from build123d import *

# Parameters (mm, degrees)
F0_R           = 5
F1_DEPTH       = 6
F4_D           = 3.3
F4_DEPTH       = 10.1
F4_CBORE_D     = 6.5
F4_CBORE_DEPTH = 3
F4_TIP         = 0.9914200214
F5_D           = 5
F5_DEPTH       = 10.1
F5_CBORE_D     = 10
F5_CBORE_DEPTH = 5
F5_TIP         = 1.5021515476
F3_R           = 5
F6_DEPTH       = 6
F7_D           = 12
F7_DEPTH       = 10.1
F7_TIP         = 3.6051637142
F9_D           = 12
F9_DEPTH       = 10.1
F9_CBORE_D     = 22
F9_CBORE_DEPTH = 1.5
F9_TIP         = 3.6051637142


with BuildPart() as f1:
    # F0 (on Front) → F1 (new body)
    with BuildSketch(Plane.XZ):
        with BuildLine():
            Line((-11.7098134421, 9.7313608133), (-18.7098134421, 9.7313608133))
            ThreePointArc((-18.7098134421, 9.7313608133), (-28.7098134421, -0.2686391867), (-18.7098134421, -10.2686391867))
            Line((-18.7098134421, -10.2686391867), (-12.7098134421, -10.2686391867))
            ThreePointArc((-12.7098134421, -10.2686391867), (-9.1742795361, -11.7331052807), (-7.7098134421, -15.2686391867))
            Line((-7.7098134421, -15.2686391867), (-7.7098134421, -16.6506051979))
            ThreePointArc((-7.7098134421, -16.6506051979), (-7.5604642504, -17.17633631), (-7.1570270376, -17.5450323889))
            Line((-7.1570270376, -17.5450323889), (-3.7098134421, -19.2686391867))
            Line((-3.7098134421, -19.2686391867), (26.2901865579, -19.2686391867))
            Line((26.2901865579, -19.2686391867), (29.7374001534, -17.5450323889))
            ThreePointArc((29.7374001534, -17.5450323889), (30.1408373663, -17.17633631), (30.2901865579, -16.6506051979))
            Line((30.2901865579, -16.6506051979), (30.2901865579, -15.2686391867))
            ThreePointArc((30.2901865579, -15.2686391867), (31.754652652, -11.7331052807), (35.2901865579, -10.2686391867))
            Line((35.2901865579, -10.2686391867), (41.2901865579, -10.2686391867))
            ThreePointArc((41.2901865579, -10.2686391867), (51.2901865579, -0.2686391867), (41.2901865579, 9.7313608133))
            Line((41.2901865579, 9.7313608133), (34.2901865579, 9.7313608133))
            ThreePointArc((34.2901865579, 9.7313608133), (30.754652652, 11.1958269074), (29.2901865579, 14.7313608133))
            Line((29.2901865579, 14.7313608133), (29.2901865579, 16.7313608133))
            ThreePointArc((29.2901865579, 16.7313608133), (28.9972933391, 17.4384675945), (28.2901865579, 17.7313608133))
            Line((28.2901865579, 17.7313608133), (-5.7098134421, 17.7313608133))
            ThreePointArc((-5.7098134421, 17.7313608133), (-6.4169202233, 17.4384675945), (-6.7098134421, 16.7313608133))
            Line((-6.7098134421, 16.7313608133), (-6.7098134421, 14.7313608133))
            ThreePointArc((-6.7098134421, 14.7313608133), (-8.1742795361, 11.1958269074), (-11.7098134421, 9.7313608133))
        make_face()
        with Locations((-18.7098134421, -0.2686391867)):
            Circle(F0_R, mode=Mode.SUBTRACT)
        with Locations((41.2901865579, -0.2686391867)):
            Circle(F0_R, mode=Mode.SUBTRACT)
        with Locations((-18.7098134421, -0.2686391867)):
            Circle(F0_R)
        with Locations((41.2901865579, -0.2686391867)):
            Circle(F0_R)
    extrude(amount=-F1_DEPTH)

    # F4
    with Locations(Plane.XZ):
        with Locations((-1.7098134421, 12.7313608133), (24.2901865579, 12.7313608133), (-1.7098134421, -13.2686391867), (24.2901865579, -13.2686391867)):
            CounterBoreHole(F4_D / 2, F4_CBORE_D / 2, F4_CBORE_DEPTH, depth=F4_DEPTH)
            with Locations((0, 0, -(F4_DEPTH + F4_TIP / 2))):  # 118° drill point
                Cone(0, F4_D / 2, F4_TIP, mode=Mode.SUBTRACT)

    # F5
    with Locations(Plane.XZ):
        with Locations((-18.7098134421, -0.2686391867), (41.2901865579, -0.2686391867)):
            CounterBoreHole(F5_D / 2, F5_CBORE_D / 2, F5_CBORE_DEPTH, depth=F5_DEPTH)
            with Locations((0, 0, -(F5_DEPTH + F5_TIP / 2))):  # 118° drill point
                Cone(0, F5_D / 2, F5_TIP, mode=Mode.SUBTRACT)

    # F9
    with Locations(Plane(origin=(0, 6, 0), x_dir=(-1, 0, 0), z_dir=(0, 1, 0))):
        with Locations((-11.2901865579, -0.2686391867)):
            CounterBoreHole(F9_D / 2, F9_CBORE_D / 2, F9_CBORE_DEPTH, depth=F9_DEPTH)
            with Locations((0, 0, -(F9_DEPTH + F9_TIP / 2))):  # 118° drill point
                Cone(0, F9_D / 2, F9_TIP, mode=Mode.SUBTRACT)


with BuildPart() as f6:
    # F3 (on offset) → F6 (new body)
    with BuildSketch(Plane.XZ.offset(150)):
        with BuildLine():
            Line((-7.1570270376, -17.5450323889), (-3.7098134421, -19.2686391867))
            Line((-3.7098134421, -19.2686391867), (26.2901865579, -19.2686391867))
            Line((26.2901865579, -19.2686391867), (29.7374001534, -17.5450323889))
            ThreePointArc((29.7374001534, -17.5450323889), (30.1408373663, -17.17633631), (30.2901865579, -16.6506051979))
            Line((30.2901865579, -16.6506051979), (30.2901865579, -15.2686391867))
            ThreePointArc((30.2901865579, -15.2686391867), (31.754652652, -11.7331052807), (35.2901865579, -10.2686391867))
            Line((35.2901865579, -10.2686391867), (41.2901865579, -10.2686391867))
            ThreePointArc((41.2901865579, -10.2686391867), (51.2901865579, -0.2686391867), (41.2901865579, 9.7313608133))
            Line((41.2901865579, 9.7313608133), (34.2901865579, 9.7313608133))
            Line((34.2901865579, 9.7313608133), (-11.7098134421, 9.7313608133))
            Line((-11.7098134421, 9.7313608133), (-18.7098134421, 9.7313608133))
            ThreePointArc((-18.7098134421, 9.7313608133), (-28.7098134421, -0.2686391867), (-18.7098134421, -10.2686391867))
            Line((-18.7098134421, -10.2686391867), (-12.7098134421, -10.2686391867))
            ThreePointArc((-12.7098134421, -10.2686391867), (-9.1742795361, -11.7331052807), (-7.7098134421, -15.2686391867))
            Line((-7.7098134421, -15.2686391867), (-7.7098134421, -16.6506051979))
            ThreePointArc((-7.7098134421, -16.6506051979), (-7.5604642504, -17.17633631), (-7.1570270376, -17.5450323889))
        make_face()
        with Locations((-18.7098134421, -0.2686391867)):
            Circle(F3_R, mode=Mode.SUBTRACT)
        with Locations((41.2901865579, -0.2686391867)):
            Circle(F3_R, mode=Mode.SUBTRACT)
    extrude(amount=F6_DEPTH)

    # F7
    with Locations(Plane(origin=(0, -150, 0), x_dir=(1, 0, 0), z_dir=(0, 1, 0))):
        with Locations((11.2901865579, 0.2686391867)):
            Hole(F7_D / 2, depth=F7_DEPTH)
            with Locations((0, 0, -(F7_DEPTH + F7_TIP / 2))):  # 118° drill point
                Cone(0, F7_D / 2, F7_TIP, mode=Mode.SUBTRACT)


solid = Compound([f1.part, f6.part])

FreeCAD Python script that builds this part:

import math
import FreeCAD as App
import Part
import Sketcher
from FreeCAD import Vector

doc = App.newDocument("Part")
body = doc.addObject("PartDesign::Body", "Body")

# Sketch on XZ plane
sketch1 = body.newObject("Sketcher::SketchObject", "Sketch")
sketch1.AttachmentSupport = (doc.getObject("XZ_Plane"), [""])
sketch1.MapMode = "FlatFace"
sketch1.addGeometry(Part.LineSegment(Vector(-11.7, 9.7, 0), Vector(-18.7, 9.7, 0)), False)
sketch1.addGeometry(Part.ArcOfCircle(Part.Circle(Vector(-18.7, -0.3, 0), Vector(0, 0, 1), 10), math.radians(90), math.radians(270)), False)
sketch1.addGeometry(Part.LineSegment(Vector(-18.7, -10.3, 0), Vector(-12.7, -10.3, 0)), False)
sketch1.addGeometry(Part.ArcOfCircle(Part.Circle(Vector(-12.7, -15.3, 0), Vector(0, 0, 1), 5), math.radians(0), math.radians(90)), False)
sketch1.addGeometry(Part.LineSegment(Vector(-7.7, -15.3, 0), Vector(-7.7, -16.7, 0)), False)
sketch1.addGeometry(Part.ArcOfCircle(Part.Circle(Vector(-6.7, -16.7, 0), Vector(0, 0, 1), 1), math.radians(180), math.radians(243)), False)
sketch1.addGeometry(Part.LineSegment(Vector(-7.2, -17.5, 0), Vector(-3.7, -19.3, 0)), False)
sketch1.addGeometry(Part.LineSegment(Vector(-3.7, -19.3, 0), Vector(26.3, -19.3, 0)), False)
sketch1.addGeometry(Part.LineSegment(Vector(26.3, -19.3, 0), Vector(29.7, -17.5, 0)), False)
sketch1.addGeometry(Part.ArcOfCircle(Part.Circle(Vector(29.3, -16.7, 0), Vector(0, 0, 1), 1), math.radians(-63), math.radians(0)), False)
sketch1.addGeometry(Part.LineSegment(Vector(30.3, -16.7, 0), Vector(30.3, -15.3, 0)), False)
sketch1.addGeometry(Part.ArcOfCircle(Part.Circle(Vector(35.3, -15.3, 0), Vector(0, 0, 1), 5), math.radians(90), math.radians(180)), False)
sketch1.addGeometry(Part.LineSegment(Vector(35.3, -10.3, 0), Vector(41.3, -10.3, 0)), False)
sketch1.addGeometry(Part.ArcOfCircle(Part.Circle(Vector(41.3, -0.3, 0), Vector(0, 0, 1), 10), math.radians(-90), math.radians(90)), False)
sketch1.addGeometry(Part.LineSegment(Vector(41.3, 9.7, 0), Vector(34.3, 9.7, 0)), False)
sketch1.addGeometry(Part.ArcOfCircle(Part.Circle(Vector(34.3, 14.7, 0), Vector(0, 0, 1), 5), math.radians(180), math.radians(270)), False)
sketch1.addGeometry(Part.LineSegment(Vector(29.3, 14.7, 0), Vector(29.3, 16.7, 0)), False)
sketch1.addGeometry(Part.ArcOfCircle(Part.Circle(Vector(28.3, 16.7, 0), Vector(0, 0, 1), 1), math.radians(0), math.radians(90)), False)
sketch1.addGeometry(Part.LineSegment(Vector(28.3, 17.7, 0), Vector(-5.7, 17.7, 0)), False)
sketch1.addGeometry(Part.ArcOfCircle(Part.Circle(Vector(-5.7, 16.7, 0), Vector(0, 0, 1), 1), math.radians(90), math.radians(180)), False)
sketch1.addGeometry(Part.LineSegment(Vector(-6.7, 16.7, 0), Vector(-6.7, 14.7, 0)), False)
sketch1.addGeometry(Part.ArcOfCircle(Part.Circle(Vector(-11.7, 14.7, 0), Vector(0, 0, 1), 5), math.radians(-90), math.radians(0)), False)
sketch1.addConstraint(Sketcher.Constraint("Tangent", 0, 2, 1, 1))
sketch1.addConstraint(Sketcher.Constraint("Tangent", 1, 2, 2, 1))
sketch1.addConstraint(Sketcher.Constraint("Tangent", 2, 2, 3, 2))
sketch1.addConstraint(Sketcher.Constraint("Tangent", 3, 1, 4, 1))
sketch1.addConstraint(Sketcher.Constraint("Tangent", 4, 2, 5, 1))
sketch1.addConstraint(Sketcher.Constraint("Tangent", 5, 2, 6, 1))
sketch1.addConstraint(Sketcher.Constraint("Coincident", 6, 2, 7, 1))
sketch1.addConstraint(Sketcher.Constraint("Coincident", 7, 2, 8, 1))
sketch1.addConstraint(Sketcher.Constraint("Tangent", 8, 2, 9, 1))
sketch1.addConstraint(Sketcher.Constraint("Tangent", 9, 2, 10, 1))
sketch1.addConstraint(Sketcher.Constraint("Tangent", 10, 2, 11, 2))
sketch1.addConstraint(Sketcher.Constraint("Tangent", 11, 1, 12, 1))
sketch1.addConstraint(Sketcher.Constraint("Tangent", 12, 2, 13, 1))
sketch1.addConstraint(Sketcher.Constraint("Tangent", 13, 2, 14, 1))
sketch1.addConstraint(Sketcher.Constraint("Tangent", 14, 2, 15, 2))
sketch1.addConstraint(Sketcher.Constraint("Tangent", 15, 1, 16, 1))
sketch1.addConstraint(Sketcher.Constraint("Tangent", 16, 2, 17, 1))
sketch1.addConstraint(Sketcher.Constraint("Tangent", 17, 2, 18, 1))
sketch1.addConstraint(Sketcher.Constraint("Tangent", 18, 2, 19, 1))
sketch1.addConstraint(Sketcher.Constraint("Tangent", 19, 2, 20, 1))
sketch1.addConstraint(Sketcher.Constraint("Tangent", 20, 2, 21, 2))
sketch1.addConstraint(Sketcher.Constraint("Tangent", 21, 1, 0, 1))
sketch1.addConstraint(Sketcher.Constraint("Horizontal", 0))
sketch1.addConstraint(Sketcher.Constraint("Horizontal", 2))
sketch1.addConstraint(Sketcher.Constraint("Vertical", 4))
sketch1.addConstraint(Sketcher.Constraint("Horizontal", 7))
sketch1.addConstraint(Sketcher.Constraint("Vertical", 10))
sketch1.addConstraint(Sketcher.Constraint("Horizontal", 12))
sketch1.addConstraint(Sketcher.Constraint("Horizontal", 14))
sketch1.addConstraint(Sketcher.Constraint("Vertical", 16))
sketch1.addConstraint(Sketcher.Constraint("Horizontal", 18))
sketch1.addConstraint(Sketcher.Constraint("Vertical", 20))
sketch1.addConstraint(Sketcher.Constraint("Equal", 5, 9))
sketch1.addConstraint(Sketcher.Constraint("Equal", 3, 11))
sketch1.addConstraint(Sketcher.Constraint("Equal", 1, 13))
sketch1.addConstraint(Sketcher.Constraint("Equal", 11, 15))
sketch1.addConstraint(Sketcher.Constraint("Equal", 9, 17))
sketch1.addConstraint(Sketcher.Constraint("Equal", 17, 19))
sketch1.addConstraint(Sketcher.Constraint("Equal", 15, 21))
sketch1.addConstraint(Sketcher.Constraint("Horizontal", 5, 3, 9, 3))
sketch1.addConstraint(Sketcher.Constraint("Horizontal", 3, 3, 11, 3))
sketch1.addConstraint(Sketcher.Constraint("Horizontal", 5, 2, 8, 2))
sketch1.addConstraint(Sketcher.Constraint("Vertical", 9, 3, 15, 1))
sketch1.addConstraint(Sketcher.Constraint("Vertical", 5, 3, 19, 2))
sketch1.addConstraint(Sketcher.Constraint("Equal", 2, 12))
sketch1.addConstraint(Sketcher.Constraint("Radius", 1, 10.0))
sketch1.addConstraint(Sketcher.Constraint("Radius", 3, 5.0))
sketch1.addConstraint(Sketcher.Constraint("Radius", 5, 1.0))
sketch1.addConstraint(Sketcher.Constraint("DistanceX", 0, 2, 0, 1, 7.0))
sketch1.addConstraint(Sketcher.Constraint("DistanceX", 7, 1, 7, 2, 30.0))
sketch1.addConstraint(Sketcher.Constraint("DistanceX", 18, 2, 18, 1, 34.0))
sketch1.addConstraint(Sketcher.Constraint("DistanceY", 16, 1, 16, 2, 2.0))
sketch1.addConstraint(Sketcher.Constraint("DistanceY", 6, 2, 3, 1, 4.0))
sketch1.addConstraint(Sketcher.Constraint("Distance", 6, 3.854102))
sketch1.addConstraint(Sketcher.Constraint("DistanceX", -1, 1, 8, 2, 29.7374))
sketch1.addConstraint(Sketcher.Constraint("DistanceY", 1, 3, -1, 1, 0.268639))
pad1 = body.newObject("PartDesign::Pad", "Pad")
pad1.Profile = sketch1
pad1.Length = 6
pad1.Reversed = True

# Sketch on XZ plane
sketch2 = body.newObject("Sketcher::SketchObject", "Sketch001")
sketch2.AttachmentSupport = (doc.getObject("XZ_Plane"), [""])
sketch2.MapMode = "FlatFace"
sketch2.addGeometry(Part.Circle(Vector(-1.7, 12.7, 0), Vector(0, 0, 1), 1.6), False)
sketch2.addGeometry(Part.Circle(Vector(24.3, 12.7, 0), Vector(0, 0, 1), 1.6), False)
sketch2.addGeometry(Part.Circle(Vector(-1.7, -13.3, 0), Vector(0, 0, 1), 1.6), False)
sketch2.addGeometry(Part.Circle(Vector(24.3, -13.3, 0), Vector(0, 0, 1), 1.6), False)
sketch2.addConstraint(Sketcher.Constraint("Equal", 0, 1))
sketch2.addConstraint(Sketcher.Constraint("Equal", 1, 2))
sketch2.addConstraint(Sketcher.Constraint("Equal", 2, 3))
sketch2.addConstraint(Sketcher.Constraint("Horizontal", 0, 3, 1, 3))
sketch2.addConstraint(Sketcher.Constraint("Horizontal", 2, 3, 3, 3))
sketch2.addConstraint(Sketcher.Constraint("Vertical", 0, 3, 2, 3))
sketch2.addConstraint(Sketcher.Constraint("Vertical", 1, 3, 3, 3))
sketch2.addConstraint(Sketcher.Constraint("Diameter", 0, 3.3))
sketch2.addConstraint(Sketcher.Constraint("DistanceX", 0, 3, 1, 3, 26.0))
sketch2.addConstraint(Sketcher.Constraint("DistanceY", 2, 3, 0, 3, 26.0))
sketch2.addConstraint(Sketcher.Constraint("DistanceY", -1, 1, 0, 3, 12.731361))
sketch2.addConstraint(Sketcher.Constraint("DistanceX", 0, 3, -1, 1, 1.709813))
doc.recompute()
hole = body.newObject("PartDesign::Hole", "Hole")
hole.Profile = sketch2
hole.ThreadType = "None"
hole.Diameter = 3.3
hole.DepthType = "Dimension"
hole.Depth = 10.1
hole.DrillPoint = "Angled"
hole.DrillPointAngle = 118
hole.HoleCutType = "Counterbore"
hole.HoleCutDiameter = 6.5
hole.HoleCutDepth = 3

# Sketch on XZ plane
sketch3 = body.newObject("Sketcher::SketchObject", "Sketch002")
sketch3.AttachmentSupport = (doc.getObject("XZ_Plane"), [""])
sketch3.MapMode = "FlatFace"
sketch3.addGeometry(Part.Circle(Vector(-18.7, -0.3, 0), Vector(0, 0, 1), 2.5), False)
sketch3.addGeometry(Part.Circle(Vector(41.3, -0.3, 0), Vector(0, 0, 1), 2.5), False)
sketch3.addConstraint(Sketcher.Constraint("Equal", 0, 1))
sketch3.addConstraint(Sketcher.Constraint("Horizontal", 0, 3, 1, 3))
sketch3.addConstraint(Sketcher.Constraint("Diameter", 0, 5.0))
sketch3.addConstraint(Sketcher.Constraint("DistanceX", 0, 3, 1, 3, 60.0))
sketch3.addConstraint(Sketcher.Constraint("DistanceY", 0, 3, -1, 1, 0.268639))
sketch3.addConstraint(Sketcher.Constraint("DistanceX", 0, 3, -1, 1, 18.709813))
doc.recompute()
hole2 = body.newObject("PartDesign::Hole", "Hole001")
hole2.Profile = sketch3
hole2.ThreadType = "None"
hole2.Diameter = 5
hole2.DepthType = "Dimension"
hole2.Depth = 10.1
hole2.DrillPoint = "Angled"
hole2.DrillPointAngle = 118
hole2.HoleCutType = "Counterbore"
hole2.HoleCutDiameter = 10
hole2.HoleCutDepth = 5

# Sketch on XZ plane
sketch4 = body.newObject("Sketcher::SketchObject", "Sketch003")
sketch4.AttachmentSupport = (doc.getObject("XZ_Plane"), [""])
sketch4.MapMode = "FlatFace"
sketch4.AttachmentOffset = App.Placement(Vector(0, 0, -6), App.Rotation())
sketch4.addGeometry(Part.Circle(Vector(11, 0, 0), Vector(0, 0, 1), 6), False)
sketch4.addConstraint(Sketcher.Constraint("Diameter", 0, 12.0))
sketch4.addConstraint(Sketcher.Constraint("DistanceY", 0, 3, -1, 1, 0.268639))
sketch4.addConstraint(Sketcher.Constraint("DistanceX", -1, 1, 0, 3, 11.290187))
doc.recompute()
hole3 = body.newObject("PartDesign::Hole", "Hole002")
hole3.Profile = sketch4
hole3.ThreadType = "None"
hole3.Diameter = 12
hole3.DepthType = "Dimension"
hole3.Depth = 10.1
hole3.DrillPoint = "Angled"
hole3.DrillPointAngle = 118
hole3.HoleCutType = "Counterbore"
hole3.HoleCutDiameter = 22
hole3.HoleCutDepth = 1.5
hole3.Reversed = True
body2 = doc.addObject("PartDesign::Body", "Body001")

# Sketch on XZ plane
sketch5 = body2.newObject("Sketcher::SketchObject", "Sketch004")
sketch5.AttachmentSupport = (doc.getObject("XZ_Plane001"), [""])
sketch5.MapMode = "FlatFace"
sketch5.AttachmentOffset = App.Placement(Vector(0, 0, 150), App.Rotation())
sketch5.addGeometry(Part.LineSegment(Vector(-7.2, -17.5, 0), Vector(-3.7, -19.3, 0)), False)
sketch5.addGeometry(Part.LineSegment(Vector(-3.7, -19.3, 0), Vector(26.3, -19.3, 0)), False)
sketch5.addGeometry(Part.LineSegment(Vector(26.3, -19.3, 0), Vector(29.7, -17.5, 0)), False)
sketch5.addGeometry(Part.ArcOfCircle(Part.Circle(Vector(29.3, -16.7, 0), Vector(0, 0, 1), 1), math.radians(-63), math.radians(0)), False)
sketch5.addGeometry(Part.LineSegment(Vector(30.3, -16.7, 0), Vector(30.3, -15.3, 0)), False)
sketch5.addGeometry(Part.ArcOfCircle(Part.Circle(Vector(35.3, -15.3, 0), Vector(0, 0, 1), 5), math.radians(90), math.radians(180)), False)
sketch5.addGeometry(Part.LineSegment(Vector(35.3, -10.3, 0), Vector(41.3, -10.3, 0)), False)
sketch5.addGeometry(Part.ArcOfCircle(Part.Circle(Vector(41.3, -0.3, 0), Vector(0, 0, 1), 10), math.radians(-90), math.radians(90)), False)
sketch5.addGeometry(Part.LineSegment(Vector(41.3, 9.7, 0), Vector(-18.7, 9.7, 0)), False)
sketch5.addGeometry(Part.ArcOfCircle(Part.Circle(Vector(-18.7, -0.3, 0), Vector(0, 0, 1), 10), math.radians(90), math.radians(270)), False)
sketch5.addGeometry(Part.LineSegment(Vector(-18.7, -10.3, 0), Vector(-12.7, -10.3, 0)), False)
sketch5.addGeometry(Part.ArcOfCircle(Part.Circle(Vector(-12.7, -15.3, 0), Vector(0, 0, 1), 5), math.radians(0), math.radians(90)), False)
sketch5.addGeometry(Part.LineSegment(Vector(-7.7, -15.3, 0), Vector(-7.7, -16.7, 0)), False)
sketch5.addGeometry(Part.ArcOfCircle(Part.Circle(Vector(-6.7, -16.7, 0), Vector(0, 0, 1), 1), math.radians(180), math.radians(243)), False)
sketch5.addGeometry(Part.Circle(Vector(-18.7, -0.3, 0), Vector(0, 0, 1), 5), False)
sketch5.addGeometry(Part.Circle(Vector(41.3, -0.3, 0), Vector(0, 0, 1), 5), False)
sketch5.addConstraint(Sketcher.Constraint("Coincident", 0, 2, 1, 1))
sketch5.addConstraint(Sketcher.Constraint("Coincident", 1, 2, 2, 1))
sketch5.addConstraint(Sketcher.Constraint("Tangent", 2, 2, 3, 1))
sketch5.addConstraint(Sketcher.Constraint("Tangent", 3, 2, 4, 1))
sketch5.addConstraint(Sketcher.Constraint("Tangent", 4, 2, 5, 2))
sketch5.addConstraint(Sketcher.Constraint("Tangent", 5, 1, 6, 1))
sketch5.addConstraint(Sketcher.Constraint("Tangent", 6, 2, 7, 1))
sketch5.addConstraint(Sketcher.Constraint("Tangent", 7, 2, 8, 1))
sketch5.addConstraint(Sketcher.Constraint("Tangent", 8, 2, 9, 1))
sketch5.addConstraint(Sketcher.Constraint("Tangent", 9, 2, 10, 1))
sketch5.addConstraint(Sketcher.Constraint("Tangent", 10, 2, 11, 2))
sketch5.addConstraint(Sketcher.Constraint("Tangent", 11, 1, 12, 1))
sketch5.addConstraint(Sketcher.Constraint("Tangent", 12, 2, 13, 1))
sketch5.addConstraint(Sketcher.Constraint("Tangent", 13, 2, 0, 1))
sketch5.addConstraint(Sketcher.Constraint("Horizontal", 1))
sketch5.addConstraint(Sketcher.Constraint("Vertical", 4))
sketch5.addConstraint(Sketcher.Constraint("Horizontal", 6))
sketch5.addConstraint(Sketcher.Constraint("Horizontal", 8))
sketch5.addConstraint(Sketcher.Constraint("Horizontal", 10))
sketch5.addConstraint(Sketcher.Constraint("Vertical", 12))
sketch5.addConstraint(Sketcher.Constraint("Coincident", 14, 3, 9, 3))
sketch5.addConstraint(Sketcher.Constraint("Coincident", 15, 3, 7, 3))
sketch5.addConstraint(Sketcher.Constraint("Equal", 7, 9))
sketch5.addConstraint(Sketcher.Constraint("Equal", 5, 11))
sketch5.addConstraint(Sketcher.Constraint("Equal", 3, 13))
sketch5.addConstraint(Sketcher.Constraint("Equal", 11, 14))
sketch5.addConstraint(Sketcher.Constraint("Equal", 14, 15))
sketch5.addConstraint(Sketcher.Constraint("Horizontal", 3, 3, 13, 3))
sketch5.addConstraint(Sketcher.Constraint("Horizontal", 2, 2, 13, 2))
sketch5.addConstraint(Sketcher.Constraint("Equal", 6, 10))
sketch5.addConstraint(Sketcher.Constraint("Diameter", 14, 10.0))
sketch5.addConstraint(Sketcher.Constraint("Radius", 3, 1.0))
sketch5.addConstraint(Sketcher.Constraint("Radius", 7, 10.0))
sketch5.addConstraint(Sketcher.Constraint("DistanceX", 1, 1, 1, 2, 30.0))
sketch5.addConstraint(Sketcher.Constraint("DistanceX", 6, 1, 6, 2, 6.0))
sketch5.addConstraint(Sketcher.Constraint("DistanceX", 8, 2, 8, 1, 60.0))
sketch5.addConstraint(Sketcher.Constraint("DistanceY", 0, 2, 11, 3, 4.0))
sketch5.addConstraint(Sketcher.Constraint("Distance", 0, 3.854102))
sketch5.addConstraint(Sketcher.Constraint("DistanceX", -1, 1, 2, 2, 29.7374))
sketch5.addConstraint(Sketcher.Constraint("DistanceY", 5, 3, -1, 1, 15.268639))
pad2 = body2.newObject("PartDesign::Pad", "Pad001")
pad2.Profile = sketch5
pad2.Length = 6

# Sketch on XZ plane
sketch6 = body2.newObject("Sketcher::SketchObject", "Sketch005")
sketch6.AttachmentSupport = (doc.getObject("XZ_Plane001"), [""])
sketch6.MapMode = "FlatFace"
sketch6.AttachmentOffset = App.Placement(Vector(0, 0, 150), App.Rotation())
sketch6.addGeometry(Part.Circle(Vector(11, 0, 0), Vector(0, 0, 1), 6), False)
sketch6.addConstraint(Sketcher.Constraint("Diameter", 0, 12.0))
sketch6.addConstraint(Sketcher.Constraint("DistanceY", 0, 3, -1, 1, 0.268639))
sketch6.addConstraint(Sketcher.Constraint("DistanceX", -1, 1, 0, 3, 11.290187))
doc.recompute()
hole4 = body2.newObject("PartDesign::Hole", "Hole003")
hole4.Profile = sketch6
hole4.ThreadType = "None"
hole4.Diameter = 12
hole4.DepthType = "Dimension"
hole4.Depth = 10.1
hole4.DrillPoint = "Angled"
hole4.DrillPointAngle = 118
hole4.Reversed = True

doc.recompute()
